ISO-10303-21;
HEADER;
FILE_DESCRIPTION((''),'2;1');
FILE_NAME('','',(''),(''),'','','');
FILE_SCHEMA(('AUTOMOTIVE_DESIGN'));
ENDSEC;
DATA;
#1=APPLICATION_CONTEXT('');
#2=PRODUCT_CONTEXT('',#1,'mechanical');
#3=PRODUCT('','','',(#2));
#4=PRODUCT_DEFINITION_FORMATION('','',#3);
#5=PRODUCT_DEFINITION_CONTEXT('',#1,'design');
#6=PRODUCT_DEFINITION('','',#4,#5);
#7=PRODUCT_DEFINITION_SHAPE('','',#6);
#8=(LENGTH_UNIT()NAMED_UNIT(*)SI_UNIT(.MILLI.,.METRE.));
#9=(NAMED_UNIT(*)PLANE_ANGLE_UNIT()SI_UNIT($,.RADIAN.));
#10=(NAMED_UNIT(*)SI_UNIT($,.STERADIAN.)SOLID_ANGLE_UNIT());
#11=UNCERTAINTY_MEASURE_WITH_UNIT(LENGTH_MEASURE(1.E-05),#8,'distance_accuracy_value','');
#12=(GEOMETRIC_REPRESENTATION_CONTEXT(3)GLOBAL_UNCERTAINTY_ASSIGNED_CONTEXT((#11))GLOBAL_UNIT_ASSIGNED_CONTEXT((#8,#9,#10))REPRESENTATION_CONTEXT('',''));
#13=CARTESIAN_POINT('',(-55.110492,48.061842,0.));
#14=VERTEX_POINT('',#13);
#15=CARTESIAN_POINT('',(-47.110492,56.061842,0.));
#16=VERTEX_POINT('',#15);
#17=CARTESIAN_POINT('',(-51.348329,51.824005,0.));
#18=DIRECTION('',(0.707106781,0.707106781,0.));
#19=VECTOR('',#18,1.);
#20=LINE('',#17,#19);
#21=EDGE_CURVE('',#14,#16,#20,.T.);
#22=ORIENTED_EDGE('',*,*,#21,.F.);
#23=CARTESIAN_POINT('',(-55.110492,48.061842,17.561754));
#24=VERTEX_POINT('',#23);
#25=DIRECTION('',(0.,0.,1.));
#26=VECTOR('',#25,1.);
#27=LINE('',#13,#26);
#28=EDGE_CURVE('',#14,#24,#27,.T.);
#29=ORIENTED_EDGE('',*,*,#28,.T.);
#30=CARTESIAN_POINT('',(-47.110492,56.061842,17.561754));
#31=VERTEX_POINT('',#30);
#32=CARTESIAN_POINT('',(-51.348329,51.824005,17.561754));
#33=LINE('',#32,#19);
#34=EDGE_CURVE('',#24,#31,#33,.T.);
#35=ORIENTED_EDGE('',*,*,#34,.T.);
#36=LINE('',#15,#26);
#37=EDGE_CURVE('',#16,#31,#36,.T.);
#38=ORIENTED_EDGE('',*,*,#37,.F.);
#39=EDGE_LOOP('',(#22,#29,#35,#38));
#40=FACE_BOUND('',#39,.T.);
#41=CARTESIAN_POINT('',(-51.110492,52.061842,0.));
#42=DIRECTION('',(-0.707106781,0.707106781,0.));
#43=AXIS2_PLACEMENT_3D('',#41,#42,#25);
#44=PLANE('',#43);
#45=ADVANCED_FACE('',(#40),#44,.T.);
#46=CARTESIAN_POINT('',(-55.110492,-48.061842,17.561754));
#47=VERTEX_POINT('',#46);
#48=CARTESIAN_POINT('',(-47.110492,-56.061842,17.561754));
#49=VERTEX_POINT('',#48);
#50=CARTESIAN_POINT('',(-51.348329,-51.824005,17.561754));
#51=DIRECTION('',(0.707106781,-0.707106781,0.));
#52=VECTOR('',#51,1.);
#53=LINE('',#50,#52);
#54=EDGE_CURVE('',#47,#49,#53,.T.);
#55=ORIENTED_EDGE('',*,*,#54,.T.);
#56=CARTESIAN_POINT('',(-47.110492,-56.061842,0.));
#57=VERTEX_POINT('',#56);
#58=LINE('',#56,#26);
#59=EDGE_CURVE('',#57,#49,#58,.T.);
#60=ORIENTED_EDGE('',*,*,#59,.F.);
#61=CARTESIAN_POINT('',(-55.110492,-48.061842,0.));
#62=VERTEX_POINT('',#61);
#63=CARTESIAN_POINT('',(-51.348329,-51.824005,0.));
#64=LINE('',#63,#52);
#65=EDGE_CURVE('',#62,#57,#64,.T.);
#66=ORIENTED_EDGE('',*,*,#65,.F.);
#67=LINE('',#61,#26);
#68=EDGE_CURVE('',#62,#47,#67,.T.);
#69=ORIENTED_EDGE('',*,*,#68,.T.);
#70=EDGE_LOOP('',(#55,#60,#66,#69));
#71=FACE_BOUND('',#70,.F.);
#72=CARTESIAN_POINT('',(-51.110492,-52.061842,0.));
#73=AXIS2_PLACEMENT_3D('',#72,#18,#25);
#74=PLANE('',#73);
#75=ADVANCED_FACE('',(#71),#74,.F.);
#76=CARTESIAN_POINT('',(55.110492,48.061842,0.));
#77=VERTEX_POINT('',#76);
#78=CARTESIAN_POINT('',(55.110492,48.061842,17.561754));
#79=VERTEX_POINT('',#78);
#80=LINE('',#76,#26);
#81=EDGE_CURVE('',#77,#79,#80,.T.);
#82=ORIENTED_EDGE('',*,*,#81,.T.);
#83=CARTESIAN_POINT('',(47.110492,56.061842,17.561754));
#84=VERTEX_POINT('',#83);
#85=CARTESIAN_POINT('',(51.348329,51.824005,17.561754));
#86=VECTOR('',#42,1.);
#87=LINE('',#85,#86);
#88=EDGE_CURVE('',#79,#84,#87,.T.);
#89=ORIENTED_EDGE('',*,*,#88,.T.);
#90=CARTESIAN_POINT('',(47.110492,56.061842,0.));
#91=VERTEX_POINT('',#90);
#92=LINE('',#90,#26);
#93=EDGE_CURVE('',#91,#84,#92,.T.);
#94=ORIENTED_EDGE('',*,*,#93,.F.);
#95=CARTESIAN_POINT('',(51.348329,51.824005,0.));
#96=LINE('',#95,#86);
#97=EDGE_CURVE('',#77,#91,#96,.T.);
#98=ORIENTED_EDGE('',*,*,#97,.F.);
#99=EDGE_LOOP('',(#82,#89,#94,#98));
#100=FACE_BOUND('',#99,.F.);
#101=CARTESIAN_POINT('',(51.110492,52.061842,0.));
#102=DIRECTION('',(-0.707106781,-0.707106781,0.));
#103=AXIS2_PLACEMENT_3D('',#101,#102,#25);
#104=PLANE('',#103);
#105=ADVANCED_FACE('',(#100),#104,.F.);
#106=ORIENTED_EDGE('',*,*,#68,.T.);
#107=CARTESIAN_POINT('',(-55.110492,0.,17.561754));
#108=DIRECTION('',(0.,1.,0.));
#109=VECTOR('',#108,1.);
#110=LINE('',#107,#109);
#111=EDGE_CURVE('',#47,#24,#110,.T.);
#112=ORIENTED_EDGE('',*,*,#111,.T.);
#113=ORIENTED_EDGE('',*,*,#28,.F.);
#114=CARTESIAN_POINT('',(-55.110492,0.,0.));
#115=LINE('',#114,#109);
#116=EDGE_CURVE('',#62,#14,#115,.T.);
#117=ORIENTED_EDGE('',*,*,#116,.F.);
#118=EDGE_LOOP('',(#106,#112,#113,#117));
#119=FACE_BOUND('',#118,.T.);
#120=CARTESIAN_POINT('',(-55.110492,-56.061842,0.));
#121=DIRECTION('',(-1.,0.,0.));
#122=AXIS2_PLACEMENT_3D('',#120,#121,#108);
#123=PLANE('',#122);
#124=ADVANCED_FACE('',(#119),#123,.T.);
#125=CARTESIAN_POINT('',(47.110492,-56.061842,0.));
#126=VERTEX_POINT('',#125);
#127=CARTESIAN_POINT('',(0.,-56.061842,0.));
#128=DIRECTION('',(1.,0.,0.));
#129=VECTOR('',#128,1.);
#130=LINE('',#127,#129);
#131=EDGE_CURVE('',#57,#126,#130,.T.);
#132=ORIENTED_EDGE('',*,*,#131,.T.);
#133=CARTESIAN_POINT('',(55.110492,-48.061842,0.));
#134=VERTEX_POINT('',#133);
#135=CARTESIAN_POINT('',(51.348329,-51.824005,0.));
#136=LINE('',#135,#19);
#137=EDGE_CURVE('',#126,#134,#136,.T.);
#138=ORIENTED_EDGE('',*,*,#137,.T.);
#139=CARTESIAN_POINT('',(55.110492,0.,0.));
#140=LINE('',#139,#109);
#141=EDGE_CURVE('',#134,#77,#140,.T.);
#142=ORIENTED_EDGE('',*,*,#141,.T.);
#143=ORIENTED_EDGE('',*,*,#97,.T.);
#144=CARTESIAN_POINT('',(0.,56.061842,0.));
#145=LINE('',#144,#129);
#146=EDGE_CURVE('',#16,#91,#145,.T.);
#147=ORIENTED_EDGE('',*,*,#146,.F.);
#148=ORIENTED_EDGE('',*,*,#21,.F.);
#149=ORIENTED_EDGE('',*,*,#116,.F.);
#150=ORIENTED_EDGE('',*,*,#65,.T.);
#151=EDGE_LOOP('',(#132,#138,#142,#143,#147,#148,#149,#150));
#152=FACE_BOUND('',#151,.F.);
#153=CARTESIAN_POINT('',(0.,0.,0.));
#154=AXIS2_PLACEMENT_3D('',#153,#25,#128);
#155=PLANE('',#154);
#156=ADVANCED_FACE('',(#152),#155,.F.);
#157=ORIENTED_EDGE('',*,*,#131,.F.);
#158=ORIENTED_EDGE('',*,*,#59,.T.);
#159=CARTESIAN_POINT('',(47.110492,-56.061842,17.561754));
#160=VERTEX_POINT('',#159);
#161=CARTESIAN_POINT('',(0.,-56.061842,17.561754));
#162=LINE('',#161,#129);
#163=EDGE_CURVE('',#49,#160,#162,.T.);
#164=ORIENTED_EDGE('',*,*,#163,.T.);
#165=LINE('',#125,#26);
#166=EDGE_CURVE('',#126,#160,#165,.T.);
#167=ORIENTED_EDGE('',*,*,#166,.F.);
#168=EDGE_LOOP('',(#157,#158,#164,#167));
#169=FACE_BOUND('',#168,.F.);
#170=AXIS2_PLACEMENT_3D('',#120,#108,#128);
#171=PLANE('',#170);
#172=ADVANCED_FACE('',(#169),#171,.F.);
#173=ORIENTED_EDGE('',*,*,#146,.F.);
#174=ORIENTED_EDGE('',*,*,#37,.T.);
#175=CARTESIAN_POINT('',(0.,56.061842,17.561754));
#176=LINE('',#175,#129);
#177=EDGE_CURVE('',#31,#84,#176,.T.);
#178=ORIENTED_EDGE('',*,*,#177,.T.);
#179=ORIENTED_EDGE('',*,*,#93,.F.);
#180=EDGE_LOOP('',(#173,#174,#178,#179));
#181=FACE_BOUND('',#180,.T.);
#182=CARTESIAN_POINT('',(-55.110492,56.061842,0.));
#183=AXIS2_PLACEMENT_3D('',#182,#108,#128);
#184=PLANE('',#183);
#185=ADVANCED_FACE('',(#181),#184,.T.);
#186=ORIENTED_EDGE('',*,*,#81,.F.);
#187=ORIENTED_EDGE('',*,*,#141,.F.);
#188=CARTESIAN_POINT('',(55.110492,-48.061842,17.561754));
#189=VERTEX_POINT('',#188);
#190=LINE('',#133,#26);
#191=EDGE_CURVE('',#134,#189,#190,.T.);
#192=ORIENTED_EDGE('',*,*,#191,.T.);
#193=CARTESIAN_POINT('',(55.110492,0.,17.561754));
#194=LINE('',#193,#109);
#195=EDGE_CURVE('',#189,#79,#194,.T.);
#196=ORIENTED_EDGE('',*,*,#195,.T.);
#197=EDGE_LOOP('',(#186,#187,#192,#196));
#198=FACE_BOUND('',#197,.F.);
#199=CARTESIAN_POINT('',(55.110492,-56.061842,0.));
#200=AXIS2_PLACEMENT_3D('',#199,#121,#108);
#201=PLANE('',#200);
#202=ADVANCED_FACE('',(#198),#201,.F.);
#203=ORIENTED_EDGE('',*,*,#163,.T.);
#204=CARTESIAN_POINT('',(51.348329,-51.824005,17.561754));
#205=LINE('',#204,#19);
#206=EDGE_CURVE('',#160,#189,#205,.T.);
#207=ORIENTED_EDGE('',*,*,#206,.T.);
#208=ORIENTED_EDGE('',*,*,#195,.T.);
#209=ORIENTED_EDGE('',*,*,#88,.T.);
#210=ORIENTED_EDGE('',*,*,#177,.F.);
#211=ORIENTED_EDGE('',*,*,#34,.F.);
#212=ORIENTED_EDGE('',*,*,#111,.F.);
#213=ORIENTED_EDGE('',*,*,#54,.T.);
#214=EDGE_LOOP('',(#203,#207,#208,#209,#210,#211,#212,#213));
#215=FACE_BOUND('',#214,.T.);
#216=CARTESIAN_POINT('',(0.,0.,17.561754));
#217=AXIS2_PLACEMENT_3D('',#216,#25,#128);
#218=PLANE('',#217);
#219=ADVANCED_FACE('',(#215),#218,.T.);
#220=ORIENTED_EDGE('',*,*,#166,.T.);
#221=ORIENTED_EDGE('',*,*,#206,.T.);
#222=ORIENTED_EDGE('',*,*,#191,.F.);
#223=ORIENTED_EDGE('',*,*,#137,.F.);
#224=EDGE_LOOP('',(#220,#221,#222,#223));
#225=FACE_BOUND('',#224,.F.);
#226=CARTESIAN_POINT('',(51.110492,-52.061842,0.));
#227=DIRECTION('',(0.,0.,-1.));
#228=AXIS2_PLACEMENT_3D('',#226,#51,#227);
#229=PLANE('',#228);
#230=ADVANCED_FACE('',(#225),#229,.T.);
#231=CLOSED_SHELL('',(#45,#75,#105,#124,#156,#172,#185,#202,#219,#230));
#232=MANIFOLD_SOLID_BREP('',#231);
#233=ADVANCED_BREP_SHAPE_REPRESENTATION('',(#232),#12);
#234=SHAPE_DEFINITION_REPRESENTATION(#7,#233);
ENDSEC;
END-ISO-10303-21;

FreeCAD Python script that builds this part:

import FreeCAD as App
import Part
import Sketcher
from FreeCAD import Vector
Q = App.Units.Quantity


def edges_at(feature, points):
    """Names of the edges that pass closest to the given points."""
    edges = feature.Shape.Edges
    near = lambda p: min(range(len(edges)), key=lambda i: edges[i].distToShape(Part.Vertex(*p))[0])
    return sorted({f"Edge{near(p) + 1}" for p in points})

doc = App.newDocument("Part")
body = doc.addObject("PartDesign::Body", "Body")

sketch1 = doc.addObject("Sketcher::SketchObject", "Sketch")
body.addObject(sketch1)
sketch1.AttachmentSupport = (doc.XY_Plane, [""])
sketch1.MapMode = "FlatFace"
sketch1.addGeometry([
    Part.LineSegment(Vector(-55, 56, 0), Vector(-55, -56, 0)),
    Part.LineSegment(Vector(-55, -56, 0), Vector(55, -56, 0)),
    Part.LineSegment(Vector(55, -56, 0), Vector(55, 56, 0)),
    Part.LineSegment(Vector(55, 56, 0), Vector(-55, 56, 0)),
], False)
sketch1.addConstraint([
    Sketcher.Constraint("Coincident", 0, 2, 1, 1),
    Sketcher.Constraint("Coincident", 1, 2, 2, 1),
    Sketcher.Constraint("Coincident", 2, 2, 3, 1),
    Sketcher.Constraint("Coincident", 3, 2, 0, 1),
    Sketcher.Constraint("Vertical", 0),
    Sketcher.Constraint("Horizontal", 1),
    Sketcher.Constraint("Vertical", 2),
    Sketcher.Constraint("Horizontal", 3),
    Sketcher.Constraint("Symmetric", 0, 2, 2, 2, -1, 1),
    Sketcher.Constraint("DistanceX", 1, 1, 1, 2, Q("110.220984 mm")),
    Sketcher.Constraint("DistanceY", 0, 2, 0, 1, Q("112.123684 mm")),
])
pad1 = doc.addObject("PartDesign::Pad", "Pad")
body.addObject(pad1)
pad1.Profile = sketch1
pad1.Length = 17.561754
doc.recompute()

chamfer = doc.addObject("PartDesign::Chamfer", "Chamfer")
body.addObject(chamfer)
chamfer.Base = (pad1, edges_at(pad1, [
    (-55.11, 56.062, 8.781),
    (-55.11, -56.062, 8.781),
    (55.11, 56.062, 8.781),
    (55.11, -56.062, 8.781),
]))
chamfer.Size = 8

doc.recompute()
